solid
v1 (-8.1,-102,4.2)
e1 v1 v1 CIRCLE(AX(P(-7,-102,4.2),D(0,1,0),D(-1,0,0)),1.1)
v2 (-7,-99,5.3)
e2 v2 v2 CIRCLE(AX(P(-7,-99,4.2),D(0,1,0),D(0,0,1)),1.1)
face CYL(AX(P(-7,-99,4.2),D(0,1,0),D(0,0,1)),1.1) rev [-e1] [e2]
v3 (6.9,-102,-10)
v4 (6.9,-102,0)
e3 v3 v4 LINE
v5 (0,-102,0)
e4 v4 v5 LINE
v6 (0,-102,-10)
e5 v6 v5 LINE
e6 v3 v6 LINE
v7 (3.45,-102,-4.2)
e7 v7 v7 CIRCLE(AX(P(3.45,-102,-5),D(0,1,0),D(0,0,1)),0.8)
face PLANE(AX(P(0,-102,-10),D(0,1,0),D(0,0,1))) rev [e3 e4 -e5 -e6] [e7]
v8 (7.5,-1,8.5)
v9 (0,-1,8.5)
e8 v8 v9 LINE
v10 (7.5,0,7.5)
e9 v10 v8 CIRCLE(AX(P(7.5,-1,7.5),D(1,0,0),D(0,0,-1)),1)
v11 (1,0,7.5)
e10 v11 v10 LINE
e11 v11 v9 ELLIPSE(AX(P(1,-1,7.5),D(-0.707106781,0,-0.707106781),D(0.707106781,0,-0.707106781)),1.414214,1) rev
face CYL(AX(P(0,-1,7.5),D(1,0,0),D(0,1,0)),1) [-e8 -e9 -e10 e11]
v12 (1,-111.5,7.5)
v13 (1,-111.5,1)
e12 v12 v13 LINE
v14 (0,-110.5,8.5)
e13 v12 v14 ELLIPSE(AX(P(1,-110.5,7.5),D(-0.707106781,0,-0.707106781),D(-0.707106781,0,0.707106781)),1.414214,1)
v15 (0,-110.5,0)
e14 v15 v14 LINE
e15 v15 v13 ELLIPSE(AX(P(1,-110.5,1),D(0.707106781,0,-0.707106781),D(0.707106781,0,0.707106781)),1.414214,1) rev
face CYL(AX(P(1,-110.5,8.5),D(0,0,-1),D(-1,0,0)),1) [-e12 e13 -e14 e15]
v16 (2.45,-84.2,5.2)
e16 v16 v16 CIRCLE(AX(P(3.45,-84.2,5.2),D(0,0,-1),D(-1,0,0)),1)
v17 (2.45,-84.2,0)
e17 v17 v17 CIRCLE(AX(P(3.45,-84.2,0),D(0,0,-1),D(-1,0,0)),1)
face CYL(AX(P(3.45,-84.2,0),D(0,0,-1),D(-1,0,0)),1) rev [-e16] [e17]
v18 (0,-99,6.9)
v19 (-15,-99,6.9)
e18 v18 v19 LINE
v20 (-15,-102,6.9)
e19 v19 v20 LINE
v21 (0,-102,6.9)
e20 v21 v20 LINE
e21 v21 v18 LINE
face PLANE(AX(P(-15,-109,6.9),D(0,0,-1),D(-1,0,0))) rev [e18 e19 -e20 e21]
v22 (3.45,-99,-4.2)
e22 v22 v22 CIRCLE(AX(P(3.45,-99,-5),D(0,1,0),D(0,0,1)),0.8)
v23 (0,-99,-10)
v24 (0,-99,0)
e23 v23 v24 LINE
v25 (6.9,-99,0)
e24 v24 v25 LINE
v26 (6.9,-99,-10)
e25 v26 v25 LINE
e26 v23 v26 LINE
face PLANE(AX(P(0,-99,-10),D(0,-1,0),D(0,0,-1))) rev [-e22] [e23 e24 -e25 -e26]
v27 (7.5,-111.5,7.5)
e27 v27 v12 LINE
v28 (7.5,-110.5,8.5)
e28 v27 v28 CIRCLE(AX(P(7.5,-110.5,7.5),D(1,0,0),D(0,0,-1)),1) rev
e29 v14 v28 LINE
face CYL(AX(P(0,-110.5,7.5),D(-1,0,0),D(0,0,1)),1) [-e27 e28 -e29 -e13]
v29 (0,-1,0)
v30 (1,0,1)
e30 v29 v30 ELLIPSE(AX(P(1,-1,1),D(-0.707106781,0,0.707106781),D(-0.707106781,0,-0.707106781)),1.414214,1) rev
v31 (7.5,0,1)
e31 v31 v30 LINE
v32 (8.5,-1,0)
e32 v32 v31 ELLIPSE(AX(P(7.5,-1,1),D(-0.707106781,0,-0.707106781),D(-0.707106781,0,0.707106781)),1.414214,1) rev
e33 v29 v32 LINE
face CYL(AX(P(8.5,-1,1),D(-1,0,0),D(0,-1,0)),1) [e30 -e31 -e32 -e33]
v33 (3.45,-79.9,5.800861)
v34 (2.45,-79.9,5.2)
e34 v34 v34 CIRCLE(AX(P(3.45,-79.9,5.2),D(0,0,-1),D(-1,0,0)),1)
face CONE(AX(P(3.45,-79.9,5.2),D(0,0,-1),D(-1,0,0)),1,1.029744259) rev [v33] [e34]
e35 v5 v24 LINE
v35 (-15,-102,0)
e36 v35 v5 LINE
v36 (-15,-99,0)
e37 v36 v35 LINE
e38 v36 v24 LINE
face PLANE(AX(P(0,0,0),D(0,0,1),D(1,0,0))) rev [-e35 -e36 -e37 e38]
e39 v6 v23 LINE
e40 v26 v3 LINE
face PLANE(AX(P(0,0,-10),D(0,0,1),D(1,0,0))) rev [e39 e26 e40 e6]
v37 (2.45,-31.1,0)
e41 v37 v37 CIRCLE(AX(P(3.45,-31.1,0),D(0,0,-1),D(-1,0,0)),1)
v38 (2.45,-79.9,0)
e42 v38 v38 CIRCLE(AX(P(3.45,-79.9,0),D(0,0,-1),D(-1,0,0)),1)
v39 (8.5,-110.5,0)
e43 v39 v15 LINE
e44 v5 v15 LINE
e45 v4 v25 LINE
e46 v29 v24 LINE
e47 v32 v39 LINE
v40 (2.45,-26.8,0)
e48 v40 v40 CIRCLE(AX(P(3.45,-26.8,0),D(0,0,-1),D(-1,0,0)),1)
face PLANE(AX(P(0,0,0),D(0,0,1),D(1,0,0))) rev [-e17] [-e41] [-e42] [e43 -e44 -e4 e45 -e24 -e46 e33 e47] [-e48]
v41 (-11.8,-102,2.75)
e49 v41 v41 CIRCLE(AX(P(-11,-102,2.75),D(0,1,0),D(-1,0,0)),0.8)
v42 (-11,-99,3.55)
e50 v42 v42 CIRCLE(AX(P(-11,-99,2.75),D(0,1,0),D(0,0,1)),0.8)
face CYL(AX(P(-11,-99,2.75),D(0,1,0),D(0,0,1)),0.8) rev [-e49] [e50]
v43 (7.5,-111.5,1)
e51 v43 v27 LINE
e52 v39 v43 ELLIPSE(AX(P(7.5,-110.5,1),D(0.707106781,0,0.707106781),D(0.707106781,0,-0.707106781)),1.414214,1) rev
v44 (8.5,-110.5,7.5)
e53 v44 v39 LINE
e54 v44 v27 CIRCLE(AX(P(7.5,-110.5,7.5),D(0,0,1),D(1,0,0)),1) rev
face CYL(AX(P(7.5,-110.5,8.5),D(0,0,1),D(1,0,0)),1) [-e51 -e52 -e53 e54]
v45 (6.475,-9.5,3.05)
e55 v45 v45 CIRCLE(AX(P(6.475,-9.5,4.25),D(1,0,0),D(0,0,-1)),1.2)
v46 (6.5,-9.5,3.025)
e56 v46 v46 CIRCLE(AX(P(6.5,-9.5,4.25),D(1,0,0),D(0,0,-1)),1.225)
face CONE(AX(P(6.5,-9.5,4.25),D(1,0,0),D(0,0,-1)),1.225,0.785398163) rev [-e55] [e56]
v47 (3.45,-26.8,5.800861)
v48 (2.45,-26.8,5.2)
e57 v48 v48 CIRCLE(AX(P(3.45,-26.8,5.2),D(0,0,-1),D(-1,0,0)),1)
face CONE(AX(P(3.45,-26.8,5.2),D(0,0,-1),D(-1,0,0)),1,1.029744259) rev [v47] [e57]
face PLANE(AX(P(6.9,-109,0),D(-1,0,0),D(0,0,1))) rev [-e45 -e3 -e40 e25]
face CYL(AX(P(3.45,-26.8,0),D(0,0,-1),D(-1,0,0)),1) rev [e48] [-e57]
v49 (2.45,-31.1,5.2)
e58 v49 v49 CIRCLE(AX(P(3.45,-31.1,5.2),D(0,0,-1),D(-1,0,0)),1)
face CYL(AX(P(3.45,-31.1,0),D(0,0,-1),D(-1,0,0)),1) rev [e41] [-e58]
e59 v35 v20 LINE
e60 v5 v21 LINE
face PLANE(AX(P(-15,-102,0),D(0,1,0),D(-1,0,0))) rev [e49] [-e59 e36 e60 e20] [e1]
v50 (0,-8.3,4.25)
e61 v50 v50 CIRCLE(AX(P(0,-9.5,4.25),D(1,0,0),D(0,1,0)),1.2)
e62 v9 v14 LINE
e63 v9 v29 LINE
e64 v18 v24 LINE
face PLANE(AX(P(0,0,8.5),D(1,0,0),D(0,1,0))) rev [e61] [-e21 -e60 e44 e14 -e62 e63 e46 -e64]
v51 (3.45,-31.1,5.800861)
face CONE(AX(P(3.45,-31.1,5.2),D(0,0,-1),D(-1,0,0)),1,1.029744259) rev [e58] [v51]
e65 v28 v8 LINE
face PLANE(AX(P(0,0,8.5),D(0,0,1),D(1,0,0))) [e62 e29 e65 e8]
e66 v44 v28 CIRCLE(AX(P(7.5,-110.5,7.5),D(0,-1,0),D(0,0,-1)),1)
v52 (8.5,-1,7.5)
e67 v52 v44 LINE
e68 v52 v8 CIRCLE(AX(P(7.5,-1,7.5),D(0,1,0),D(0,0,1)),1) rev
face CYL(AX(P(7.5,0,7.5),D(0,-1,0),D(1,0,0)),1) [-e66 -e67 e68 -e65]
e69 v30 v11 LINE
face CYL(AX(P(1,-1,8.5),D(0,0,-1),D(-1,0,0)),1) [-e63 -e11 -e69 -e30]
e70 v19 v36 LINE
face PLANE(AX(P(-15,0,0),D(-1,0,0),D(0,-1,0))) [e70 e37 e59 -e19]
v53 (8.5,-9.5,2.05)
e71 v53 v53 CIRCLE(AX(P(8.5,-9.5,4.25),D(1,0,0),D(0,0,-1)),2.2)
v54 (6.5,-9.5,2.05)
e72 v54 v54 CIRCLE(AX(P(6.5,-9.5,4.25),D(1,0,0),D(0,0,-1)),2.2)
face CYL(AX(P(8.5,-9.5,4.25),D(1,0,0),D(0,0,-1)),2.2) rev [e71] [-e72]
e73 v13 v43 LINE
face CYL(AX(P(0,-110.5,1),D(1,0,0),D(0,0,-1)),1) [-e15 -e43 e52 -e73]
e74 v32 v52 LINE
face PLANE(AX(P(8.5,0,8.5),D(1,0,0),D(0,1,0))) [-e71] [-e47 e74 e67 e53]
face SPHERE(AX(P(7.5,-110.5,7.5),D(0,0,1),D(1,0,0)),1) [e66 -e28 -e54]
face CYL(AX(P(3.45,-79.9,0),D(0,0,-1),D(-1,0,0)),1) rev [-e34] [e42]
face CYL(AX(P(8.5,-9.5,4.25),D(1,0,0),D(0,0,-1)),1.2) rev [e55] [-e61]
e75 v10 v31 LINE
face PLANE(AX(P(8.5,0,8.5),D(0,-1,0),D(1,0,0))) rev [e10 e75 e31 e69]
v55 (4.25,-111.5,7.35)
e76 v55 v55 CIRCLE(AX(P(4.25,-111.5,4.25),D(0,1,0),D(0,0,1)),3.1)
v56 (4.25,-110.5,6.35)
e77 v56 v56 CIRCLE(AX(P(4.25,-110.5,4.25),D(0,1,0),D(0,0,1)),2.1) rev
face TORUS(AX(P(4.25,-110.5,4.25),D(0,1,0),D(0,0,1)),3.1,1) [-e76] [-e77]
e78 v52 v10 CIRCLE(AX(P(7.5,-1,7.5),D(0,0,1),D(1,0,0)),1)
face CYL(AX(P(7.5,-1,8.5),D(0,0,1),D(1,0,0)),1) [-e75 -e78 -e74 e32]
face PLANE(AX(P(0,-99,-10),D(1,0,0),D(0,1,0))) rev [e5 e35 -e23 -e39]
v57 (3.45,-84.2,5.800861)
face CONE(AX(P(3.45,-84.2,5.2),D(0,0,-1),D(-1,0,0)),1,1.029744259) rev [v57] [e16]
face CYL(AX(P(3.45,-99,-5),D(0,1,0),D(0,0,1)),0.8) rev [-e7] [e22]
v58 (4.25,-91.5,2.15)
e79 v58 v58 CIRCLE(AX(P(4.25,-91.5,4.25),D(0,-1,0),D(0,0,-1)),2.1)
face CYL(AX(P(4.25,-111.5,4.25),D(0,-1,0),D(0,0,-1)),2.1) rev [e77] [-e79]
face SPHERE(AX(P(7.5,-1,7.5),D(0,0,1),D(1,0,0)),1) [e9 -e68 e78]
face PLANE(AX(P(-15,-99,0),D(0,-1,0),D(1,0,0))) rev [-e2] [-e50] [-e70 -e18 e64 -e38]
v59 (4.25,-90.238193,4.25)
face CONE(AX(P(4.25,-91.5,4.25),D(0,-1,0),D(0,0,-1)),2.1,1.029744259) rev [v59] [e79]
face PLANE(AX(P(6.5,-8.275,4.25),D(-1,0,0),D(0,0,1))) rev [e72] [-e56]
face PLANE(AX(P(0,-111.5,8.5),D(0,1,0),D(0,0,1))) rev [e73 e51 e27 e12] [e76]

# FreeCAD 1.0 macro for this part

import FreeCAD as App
import Part
import Sketcher
from FreeCAD import Vector
Q = App.Units.Quantity


def edges_at(feature, points):
    """Names of the edges that pass closest to the given points."""
    edges = feature.Shape.Edges
    near = lambda p: min(range(len(edges)), key=lambda i: edges[i].distToShape(Part.Vertex(*p))[0])
    return sorted({f"Edge{near(p) + 1}" for p in points})


def add_polygon(sketch, points):
    """Adds a closed chain of lines whose ends are joined by coincident constraints."""
    first, n = sketch.GeometryCount, len(points)
    for a, b in zip(points, points[1:] + points[:1]):
        sketch.addGeometry(Part.LineSegment(App.Vector(*a, 0), App.Vector(*b, 0)), False)
    for i in range(n):
        sketch.addConstraint(Sketcher.Constraint("Coincident", first + i, 2, first + (i + 1) % n, 1))

doc = App.newDocument("Part")
body = doc.addObject("PartDesign::Body", "Body")

# Sketch on XY plane
sketch1 = body.newObject("Sketcher::SketchObject", "Sketch")
sketch1.AttachmentSupport = (doc.getObject("XY_Plane"), [""])
sketch1.MapMode = "FlatFace"
add_polygon(sketch1, [(0, 0), (0, -111.5), (8.5, -111.5), (8.5, 0)])  # lines 0-3
sketch1.addConstraint([
    Sketcher.Constraint("Vertical", 0),
    Sketcher.Constraint("Horizontal", 1),
    Sketcher.Constraint("Vertical", 2),
    Sketcher.Constraint("Horizontal", 3),
    Sketcher.Constraint("Coincident", 3, 2, -1, 1),
    Sketcher.Constraint("DistanceX", 1, 1, 1, 2, 8.5),
    Sketcher.Constraint("DistanceY", 0, 2, 0, 1, 111.5),
])
pad1 = body.newObject("PartDesign::Pad", "Pad")
pad1.Profile = sketch1
pad1.Length = 8.5

# Sketch on XZ plane
sketch2 = body.newObject("Sketcher::SketchObject", "Sketch001")
sketch2.AttachmentSupport = (doc.getObject("XZ_Plane"), [""])
sketch2.MapMode = "FlatFace"
sketch2.AttachmentOffset = App.Placement(Vector(0, 0, 111.5), App.Rotation())
sketch2.addGeometry(Part.Circle(Vector(4.25, 4.25, 0), Vector(0, 0, 1), 2.1), False)
sketch2.addConstraint([
    Sketcher.Constraint("Diameter", 0, 4.2),
    Sketcher.Constraint("DistanceX", -1, 1, 0, 3, 4.25),
    Sketcher.Constraint("DistanceY", -1, 1, 0, 3, 4.25),
])
doc.recompute()
hole = body.newObject("PartDesign::Hole", "Hole")
hole.Profile = sketch2
hole.ThreadType = "None"
hole.Diameter = 4.2
hole.DepthType = "Dimension"
hole.Depth = 20
hole.DrillPoint = "Angled"
hole.DrillPointAngle = 118

# Sketch on YZ plane
sketch3 = body.newObject("Sketcher::SketchObject", "Sketch002")
sketch3.AttachmentSupport = (doc.getObject("YZ_Plane"), [""])
sketch3.MapMode = "FlatFace"
add_polygon(sketch3, [(-99, 0), (-102, 0), (-102, 8.5), (-99, 8.5)])  # lines 0-3
sketch3.addConstraint([
    Sketcher.Constraint("Horizontal", 0),
    Sketcher.Constraint("Vertical", 1),
    Sketcher.Constraint("Horizontal", 2),
    Sketcher.Constraint("Vertical", 3),
    Sketcher.Constraint("PointOnObject", 0, 2, -1),
    Sketcher.Constraint("DistanceX", 0, 2, 0, 1, 3.0),
    Sketcher.Constraint("DistanceY", 1, 1, 1, 2, 8.5),
    Sketcher.Constraint("DistanceX", 0, 2, -1, 1, 102.0),
])
pad2 = body.newObject("PartDesign::Pad", "Pad001")
pad2.Profile = sketch3
pad2.Length = 15
pad2.Reversed = True

# Sketch on XZ plane
sketch4 = body.newObject("Sketcher::SketchObject", "Sketch003")
sketch4.AttachmentSupport = (doc.getObject("XZ_Plane"), [""])
sketch4.MapMode = "FlatFace"
sketch4.AttachmentOffset = App.Placement(Vector(0, 0, 99), App.Rotation())
sketch4.addGeometry(Part.Circle(Vector(-7, 4.2, 0), Vector(0, 0, 1), 1.1), False)
sketch4.addConstraint([
    Sketcher.Constraint("Diameter", 0, 2.2),
    Sketcher.Constraint("DistanceX", 0, 3, -1, 1, 7.0),
    Sketcher.Constraint("DistanceY", -1, 1, 0, 3, 4.2),
])
doc.recompute()
hole2 = body.newObject("PartDesign::Hole", "Hole001")
hole2.Profile = sketch4
hole2.ThreadType = "None"
hole2.Diameter = 2.2
hole2.DepthType = "Dimension"
hole2.Depth = 13
hole2.DrillPoint = "Flat"
hole2.Reversed = True

# Sketch on XZ plane
sketch5 = body.newObject("Sketcher::SketchObject", "Sketch004")
sketch5.AttachmentSupport = (doc.getObject("XZ_Plane"), [""])
sketch5.MapMode = "FlatFace"
sketch5.AttachmentOffset = App.Placement(Vector(0, 0, 99), App.Rotation())
sketch5.addGeometry(Part.Circle(Vector(-11, 2.75, 0), Vector(0, 0, 1), 0.8), False)
sketch5.addConstraint([
    Sketcher.Constraint("Diameter", 0, 1.6),
    Sketcher.Constraint("DistanceX", 0, 3, -1, 1, 11.0),
    Sketcher.Constraint("DistanceY", -1, 1, 0, 3, 2.75),
])
doc.recompute()
hole3 = body.newObject("PartDesign::Hole", "Hole002")
hole3.Profile = sketch5
hole3.ThreadType = "None"
hole3.Diameter = 1.6
hole3.DepthType = "Dimension"
hole3.Depth = 3
hole3.DrillPoint = "Flat"
hole3.Reversed = True

# Sketch on XY plane
sketch6 = body.newObject("Sketcher::SketchObject", "Sketch005")
sketch6.AttachmentSupport = (doc.getObject("XY_Plane"), [""])
sketch6.MapMode = "FlatFace"
add_polygon(sketch6, [(8.5, -99), (8.5, -102), (0, -102), (0, -99)])  # lines 0-3
sketch6.addConstraint([
    Sketcher.Constraint("Vertical", 0),
    Sketcher.Constraint("Horizontal", 1),
    Sketcher.Constraint("Vertical", 2),
    Sketcher.Constraint("Horizontal", 3),
    Sketcher.Constraint("PointOnObject", 1, 2, -2),
    Sketcher.Constraint("DistanceY", 0, 2, 0, 1, 3.0),
    Sketcher.Constraint("DistanceX", 1, 2, 1, 1, 8.5),
    Sketcher.Constraint("DistanceY", 0, 2, -1, 1, 102.0),
])
pad3 = body.newObject("PartDesign::Pad", "Pad002")
pad3.Profile = sketch6
pad3.Length = 10
pad3.Reversed = True

# Sketch on XZ plane
sketch7 = body.newObject("Sketcher::SketchObject", "Sketch006")
sketch7.AttachmentSupport = (doc.getObject("XZ_Plane"), [""])
sketch7.MapMode = "FlatFace"
sketch7.AttachmentOffset = App.Placement(Vector(0, 0, 99), App.Rotation())
sketch7.addGeometry(Part.Circle(Vector(3.45, -5, 0), Vector(0, 0, 1), 0.8), False)
sketch7.addConstraint([
    Sketcher.Constraint("Diameter", 0, 1.6),
    Sketcher.Constraint("DistanceY", 0, 3, -1, 1, 5.0),
    Sketcher.Constraint("DistanceX", -1, 1, 0, 3, 3.45),
])
doc.recompute()
hole4 = body.newObject("PartDesign::Hole", "Hole003")
hole4.Profile = sketch7
hole4.ThreadType = "None"
hole4.Diameter = 1.6
hole4.DepthType = "Dimension"
hole4.Depth = 3
hole4.DrillPoint = "Flat"
hole4.Reversed = True

# Sketch on XZ plane
sketch8 = body.newObject("Sketcher::SketchObject", "Sketch007")
sketch8.AttachmentSupport = (doc.getObject("XZ_Plane"), [""])
sketch8.MapMode = "FlatFace"
sketch8.AttachmentOffset = App.Placement(Vector(0, 0, 9.5), App.Rotation())
add_polygon(sketch8, [(-15.000025, 4.25), (8.5, 4.25), (8.5, 2.05), (6.5, 2.05), (6.5, 3.025), (6.475, 3.05), (-15.000025, 3.05)])  # lines 0-6
sketch8.addGeometry(Part.LineSegment(Vector(8.5, 4.25, 0), Vector(-15.000025, 4.25, 0)), True)  # axis
sketch8.addConstraint([
    Sketcher.Constraint("Horizontal", 0),
    Sketcher.Constraint("Vertical", 1),
    Sketcher.Constraint("Horizontal", 2),
    Sketcher.Constraint("Vertical", 3),
    Sketcher.Constraint("Horizontal", 5),
    Sketcher.Constraint("Vertical", 6),
    Sketcher.Constraint("Horizontal", 7),
    Sketcher.Constraint("Coincident", 7, 1, 0, 2),
    Sketcher.Constraint("Vertical", 5, 2, 7, 2),
    Sketcher.Constraint("DistanceX", 2, 2, 2, 1, 2.0),
    Sketcher.Constraint("Angle", 4, Q("135 deg")),
    Sketcher.Constraint("DistanceY", 1, 2, 1, 1, 2.2),
    Sketcher.Constraint("DistanceY", 6, 1, 6, 2, 1.2),
    Sketcher.Constraint("DistanceX", -1, 1, 0, 2, 8.5),
    Sketcher.Constraint("DistanceY", 3, 1, 3, 2, 0.975),
    Sketcher.Constraint("DistanceY", -1, 1, 0, 2, 4.25),
    Sketcher.Constraint("DistanceX", 0, 1, 0, 2, 23.500025),
])
groove = body.newObject("PartDesign::Groove", "Groove")
groove.Profile = sketch8
groove.ReferenceAxis = (sketch8, ["Axis0"])
groove.Angle = 360
doc.recompute()

fillet = body.newObject("PartDesign::Fillet", "Fillet")
fillet.Base = (groove, edges_at(groove, [
    (4.25, 0, 8.5),
    (2.15, -111.5, 4.25),
    (8.5, -55.75, 8.5),
    (4.25, 0, 0),
    (4.25, -111.5, 0),
    (4.25, -111.5, 8.5),
    (8.5, 0, 4.25),
    (0, 0, 4.25),
    (0, -111.5, 4.25),
    (8.5, -111.5, 4.25),
]))
fillet.Radius = 1

# Sketch on XY plane
sketch9 = body.newObject("Sketcher::SketchObject", "Sketch008")
sketch9.AttachmentSupport = (doc.getObject("XY_Plane"), [""])
sketch9.MapMode = "FlatFace"
sketch9.addGeometry([
    Part.Circle(Vector(3.45, -26.8, 0), Vector(0, 0, 1), 1),
    Part.Circle(Vector(3.45, -84.2, 0), Vector(0, 0, 1), 1),
    Part.Circle(Vector(3.45, -31.1, 0), Vector(0, 0, 1), 1),
    Part.Circle(Vector(3.45, -79.9, 0), Vector(0, 0, 1), 1),
], False)
sketch9.addConstraint([
    Sketcher.Constraint("Equal", 0, 1),
    Sketcher.Constraint("Equal", 1, 2),
    Sketcher.Constraint("Equal", 2, 3),
    Sketcher.Constraint("Vertical", 0, 3, 1, 3),
    Sketcher.Constraint("Vertical", 1, 3, 2, 3),
    Sketcher.Constraint("Vertical", 2, 3, 3, 3),
    Sketcher.Constraint("Diameter", 0, 2.0),
    Sketcher.Constraint("DistanceY", 0, 3, -1, 1, 26.8),
    Sketcher.Constraint("DistanceY", 1, 3, -1, 1, 84.2),
    Sketcher.Constraint("DistanceY", 2, 3, -1, 1, 31.1),
    Sketcher.Constraint("DistanceY", 3, 3, -1, 1, 79.9),
    Sketcher.Constraint("DistanceX", -1, 1, 0, 3, 3.45),
])
doc.recompute()
hole5 = body.newObject("PartDesign::Hole", "Hole004")
hole5.Profile = sketch9
hole5.ThreadType = "None"
hole5.Diameter = 2
hole5.DepthType = "Dimension"
hole5.Depth = 5.2
hole5.DrillPoint = "Angled"
hole5.DrillPointAngle = 118
hole5.Reversed = True

# Sketch on XZ plane
sketch10 = body.newObject("Sketcher::SketchObject", "Sketch009")
sketch10.AttachmentSupport = (doc.getObject("XZ_Plane"), [""])
sketch10.MapMode = "FlatFace"
sketch10.AttachmentOffset = App.Placement(Vector(0, 0, 99), App.Rotation())
add_polygon(sketch10, [(6.9, -10), (6.9, 0), (8.5, 0), (8.5, -10)])  # lines 0-3
add_polygon(sketch10, [(-15, 6.9), (-15, 8.5), (0, 8.5), (0, 6.9)])  # lines 4-7
sketch10.addConstraint([
    Sketcher.Constraint("Vertical", 0),
    Sketcher.Constraint("Horizontal", 1),
    Sketcher.Constraint("Vertical", 2),
    Sketcher.Constraint("Horizontal", 3),
    Sketcher.Constraint("Vertical", 4),
    Sketcher.Constraint("Horizontal", 5),
    Sketcher.Constraint("Vertical", 6),
    Sketcher.Constraint("Horizontal", 7),
    Sketcher.Constraint("PointOnObject", 0, 2, -1),
    Sketcher.Constraint("PointOnObject", 5, 2, -2),
    Sketcher.Constraint("Equal", 3, 4),
    Sketcher.Constraint("DistanceX", 5, 1, 5, 2, 15.0),
    Sketcher.Constraint("DistanceY", 0, 1, 0, 2, 10.0),
    Sketcher.Constraint("DistanceX", 1, 1, 1, 2, 1.6),
    Sketcher.Constraint("DistanceX", -1, 1, 0, 2, 6.9),
    Sketcher.Constraint("DistanceY", -1, 1, 4, 2, 8.5),
])
pocket1 = body.newObject("PartDesign::Pocket", "Pocket")
pocket1.Profile = sketch10
pocket1.Length = 10
pocket1.Reversed = True

doc.recompute()
